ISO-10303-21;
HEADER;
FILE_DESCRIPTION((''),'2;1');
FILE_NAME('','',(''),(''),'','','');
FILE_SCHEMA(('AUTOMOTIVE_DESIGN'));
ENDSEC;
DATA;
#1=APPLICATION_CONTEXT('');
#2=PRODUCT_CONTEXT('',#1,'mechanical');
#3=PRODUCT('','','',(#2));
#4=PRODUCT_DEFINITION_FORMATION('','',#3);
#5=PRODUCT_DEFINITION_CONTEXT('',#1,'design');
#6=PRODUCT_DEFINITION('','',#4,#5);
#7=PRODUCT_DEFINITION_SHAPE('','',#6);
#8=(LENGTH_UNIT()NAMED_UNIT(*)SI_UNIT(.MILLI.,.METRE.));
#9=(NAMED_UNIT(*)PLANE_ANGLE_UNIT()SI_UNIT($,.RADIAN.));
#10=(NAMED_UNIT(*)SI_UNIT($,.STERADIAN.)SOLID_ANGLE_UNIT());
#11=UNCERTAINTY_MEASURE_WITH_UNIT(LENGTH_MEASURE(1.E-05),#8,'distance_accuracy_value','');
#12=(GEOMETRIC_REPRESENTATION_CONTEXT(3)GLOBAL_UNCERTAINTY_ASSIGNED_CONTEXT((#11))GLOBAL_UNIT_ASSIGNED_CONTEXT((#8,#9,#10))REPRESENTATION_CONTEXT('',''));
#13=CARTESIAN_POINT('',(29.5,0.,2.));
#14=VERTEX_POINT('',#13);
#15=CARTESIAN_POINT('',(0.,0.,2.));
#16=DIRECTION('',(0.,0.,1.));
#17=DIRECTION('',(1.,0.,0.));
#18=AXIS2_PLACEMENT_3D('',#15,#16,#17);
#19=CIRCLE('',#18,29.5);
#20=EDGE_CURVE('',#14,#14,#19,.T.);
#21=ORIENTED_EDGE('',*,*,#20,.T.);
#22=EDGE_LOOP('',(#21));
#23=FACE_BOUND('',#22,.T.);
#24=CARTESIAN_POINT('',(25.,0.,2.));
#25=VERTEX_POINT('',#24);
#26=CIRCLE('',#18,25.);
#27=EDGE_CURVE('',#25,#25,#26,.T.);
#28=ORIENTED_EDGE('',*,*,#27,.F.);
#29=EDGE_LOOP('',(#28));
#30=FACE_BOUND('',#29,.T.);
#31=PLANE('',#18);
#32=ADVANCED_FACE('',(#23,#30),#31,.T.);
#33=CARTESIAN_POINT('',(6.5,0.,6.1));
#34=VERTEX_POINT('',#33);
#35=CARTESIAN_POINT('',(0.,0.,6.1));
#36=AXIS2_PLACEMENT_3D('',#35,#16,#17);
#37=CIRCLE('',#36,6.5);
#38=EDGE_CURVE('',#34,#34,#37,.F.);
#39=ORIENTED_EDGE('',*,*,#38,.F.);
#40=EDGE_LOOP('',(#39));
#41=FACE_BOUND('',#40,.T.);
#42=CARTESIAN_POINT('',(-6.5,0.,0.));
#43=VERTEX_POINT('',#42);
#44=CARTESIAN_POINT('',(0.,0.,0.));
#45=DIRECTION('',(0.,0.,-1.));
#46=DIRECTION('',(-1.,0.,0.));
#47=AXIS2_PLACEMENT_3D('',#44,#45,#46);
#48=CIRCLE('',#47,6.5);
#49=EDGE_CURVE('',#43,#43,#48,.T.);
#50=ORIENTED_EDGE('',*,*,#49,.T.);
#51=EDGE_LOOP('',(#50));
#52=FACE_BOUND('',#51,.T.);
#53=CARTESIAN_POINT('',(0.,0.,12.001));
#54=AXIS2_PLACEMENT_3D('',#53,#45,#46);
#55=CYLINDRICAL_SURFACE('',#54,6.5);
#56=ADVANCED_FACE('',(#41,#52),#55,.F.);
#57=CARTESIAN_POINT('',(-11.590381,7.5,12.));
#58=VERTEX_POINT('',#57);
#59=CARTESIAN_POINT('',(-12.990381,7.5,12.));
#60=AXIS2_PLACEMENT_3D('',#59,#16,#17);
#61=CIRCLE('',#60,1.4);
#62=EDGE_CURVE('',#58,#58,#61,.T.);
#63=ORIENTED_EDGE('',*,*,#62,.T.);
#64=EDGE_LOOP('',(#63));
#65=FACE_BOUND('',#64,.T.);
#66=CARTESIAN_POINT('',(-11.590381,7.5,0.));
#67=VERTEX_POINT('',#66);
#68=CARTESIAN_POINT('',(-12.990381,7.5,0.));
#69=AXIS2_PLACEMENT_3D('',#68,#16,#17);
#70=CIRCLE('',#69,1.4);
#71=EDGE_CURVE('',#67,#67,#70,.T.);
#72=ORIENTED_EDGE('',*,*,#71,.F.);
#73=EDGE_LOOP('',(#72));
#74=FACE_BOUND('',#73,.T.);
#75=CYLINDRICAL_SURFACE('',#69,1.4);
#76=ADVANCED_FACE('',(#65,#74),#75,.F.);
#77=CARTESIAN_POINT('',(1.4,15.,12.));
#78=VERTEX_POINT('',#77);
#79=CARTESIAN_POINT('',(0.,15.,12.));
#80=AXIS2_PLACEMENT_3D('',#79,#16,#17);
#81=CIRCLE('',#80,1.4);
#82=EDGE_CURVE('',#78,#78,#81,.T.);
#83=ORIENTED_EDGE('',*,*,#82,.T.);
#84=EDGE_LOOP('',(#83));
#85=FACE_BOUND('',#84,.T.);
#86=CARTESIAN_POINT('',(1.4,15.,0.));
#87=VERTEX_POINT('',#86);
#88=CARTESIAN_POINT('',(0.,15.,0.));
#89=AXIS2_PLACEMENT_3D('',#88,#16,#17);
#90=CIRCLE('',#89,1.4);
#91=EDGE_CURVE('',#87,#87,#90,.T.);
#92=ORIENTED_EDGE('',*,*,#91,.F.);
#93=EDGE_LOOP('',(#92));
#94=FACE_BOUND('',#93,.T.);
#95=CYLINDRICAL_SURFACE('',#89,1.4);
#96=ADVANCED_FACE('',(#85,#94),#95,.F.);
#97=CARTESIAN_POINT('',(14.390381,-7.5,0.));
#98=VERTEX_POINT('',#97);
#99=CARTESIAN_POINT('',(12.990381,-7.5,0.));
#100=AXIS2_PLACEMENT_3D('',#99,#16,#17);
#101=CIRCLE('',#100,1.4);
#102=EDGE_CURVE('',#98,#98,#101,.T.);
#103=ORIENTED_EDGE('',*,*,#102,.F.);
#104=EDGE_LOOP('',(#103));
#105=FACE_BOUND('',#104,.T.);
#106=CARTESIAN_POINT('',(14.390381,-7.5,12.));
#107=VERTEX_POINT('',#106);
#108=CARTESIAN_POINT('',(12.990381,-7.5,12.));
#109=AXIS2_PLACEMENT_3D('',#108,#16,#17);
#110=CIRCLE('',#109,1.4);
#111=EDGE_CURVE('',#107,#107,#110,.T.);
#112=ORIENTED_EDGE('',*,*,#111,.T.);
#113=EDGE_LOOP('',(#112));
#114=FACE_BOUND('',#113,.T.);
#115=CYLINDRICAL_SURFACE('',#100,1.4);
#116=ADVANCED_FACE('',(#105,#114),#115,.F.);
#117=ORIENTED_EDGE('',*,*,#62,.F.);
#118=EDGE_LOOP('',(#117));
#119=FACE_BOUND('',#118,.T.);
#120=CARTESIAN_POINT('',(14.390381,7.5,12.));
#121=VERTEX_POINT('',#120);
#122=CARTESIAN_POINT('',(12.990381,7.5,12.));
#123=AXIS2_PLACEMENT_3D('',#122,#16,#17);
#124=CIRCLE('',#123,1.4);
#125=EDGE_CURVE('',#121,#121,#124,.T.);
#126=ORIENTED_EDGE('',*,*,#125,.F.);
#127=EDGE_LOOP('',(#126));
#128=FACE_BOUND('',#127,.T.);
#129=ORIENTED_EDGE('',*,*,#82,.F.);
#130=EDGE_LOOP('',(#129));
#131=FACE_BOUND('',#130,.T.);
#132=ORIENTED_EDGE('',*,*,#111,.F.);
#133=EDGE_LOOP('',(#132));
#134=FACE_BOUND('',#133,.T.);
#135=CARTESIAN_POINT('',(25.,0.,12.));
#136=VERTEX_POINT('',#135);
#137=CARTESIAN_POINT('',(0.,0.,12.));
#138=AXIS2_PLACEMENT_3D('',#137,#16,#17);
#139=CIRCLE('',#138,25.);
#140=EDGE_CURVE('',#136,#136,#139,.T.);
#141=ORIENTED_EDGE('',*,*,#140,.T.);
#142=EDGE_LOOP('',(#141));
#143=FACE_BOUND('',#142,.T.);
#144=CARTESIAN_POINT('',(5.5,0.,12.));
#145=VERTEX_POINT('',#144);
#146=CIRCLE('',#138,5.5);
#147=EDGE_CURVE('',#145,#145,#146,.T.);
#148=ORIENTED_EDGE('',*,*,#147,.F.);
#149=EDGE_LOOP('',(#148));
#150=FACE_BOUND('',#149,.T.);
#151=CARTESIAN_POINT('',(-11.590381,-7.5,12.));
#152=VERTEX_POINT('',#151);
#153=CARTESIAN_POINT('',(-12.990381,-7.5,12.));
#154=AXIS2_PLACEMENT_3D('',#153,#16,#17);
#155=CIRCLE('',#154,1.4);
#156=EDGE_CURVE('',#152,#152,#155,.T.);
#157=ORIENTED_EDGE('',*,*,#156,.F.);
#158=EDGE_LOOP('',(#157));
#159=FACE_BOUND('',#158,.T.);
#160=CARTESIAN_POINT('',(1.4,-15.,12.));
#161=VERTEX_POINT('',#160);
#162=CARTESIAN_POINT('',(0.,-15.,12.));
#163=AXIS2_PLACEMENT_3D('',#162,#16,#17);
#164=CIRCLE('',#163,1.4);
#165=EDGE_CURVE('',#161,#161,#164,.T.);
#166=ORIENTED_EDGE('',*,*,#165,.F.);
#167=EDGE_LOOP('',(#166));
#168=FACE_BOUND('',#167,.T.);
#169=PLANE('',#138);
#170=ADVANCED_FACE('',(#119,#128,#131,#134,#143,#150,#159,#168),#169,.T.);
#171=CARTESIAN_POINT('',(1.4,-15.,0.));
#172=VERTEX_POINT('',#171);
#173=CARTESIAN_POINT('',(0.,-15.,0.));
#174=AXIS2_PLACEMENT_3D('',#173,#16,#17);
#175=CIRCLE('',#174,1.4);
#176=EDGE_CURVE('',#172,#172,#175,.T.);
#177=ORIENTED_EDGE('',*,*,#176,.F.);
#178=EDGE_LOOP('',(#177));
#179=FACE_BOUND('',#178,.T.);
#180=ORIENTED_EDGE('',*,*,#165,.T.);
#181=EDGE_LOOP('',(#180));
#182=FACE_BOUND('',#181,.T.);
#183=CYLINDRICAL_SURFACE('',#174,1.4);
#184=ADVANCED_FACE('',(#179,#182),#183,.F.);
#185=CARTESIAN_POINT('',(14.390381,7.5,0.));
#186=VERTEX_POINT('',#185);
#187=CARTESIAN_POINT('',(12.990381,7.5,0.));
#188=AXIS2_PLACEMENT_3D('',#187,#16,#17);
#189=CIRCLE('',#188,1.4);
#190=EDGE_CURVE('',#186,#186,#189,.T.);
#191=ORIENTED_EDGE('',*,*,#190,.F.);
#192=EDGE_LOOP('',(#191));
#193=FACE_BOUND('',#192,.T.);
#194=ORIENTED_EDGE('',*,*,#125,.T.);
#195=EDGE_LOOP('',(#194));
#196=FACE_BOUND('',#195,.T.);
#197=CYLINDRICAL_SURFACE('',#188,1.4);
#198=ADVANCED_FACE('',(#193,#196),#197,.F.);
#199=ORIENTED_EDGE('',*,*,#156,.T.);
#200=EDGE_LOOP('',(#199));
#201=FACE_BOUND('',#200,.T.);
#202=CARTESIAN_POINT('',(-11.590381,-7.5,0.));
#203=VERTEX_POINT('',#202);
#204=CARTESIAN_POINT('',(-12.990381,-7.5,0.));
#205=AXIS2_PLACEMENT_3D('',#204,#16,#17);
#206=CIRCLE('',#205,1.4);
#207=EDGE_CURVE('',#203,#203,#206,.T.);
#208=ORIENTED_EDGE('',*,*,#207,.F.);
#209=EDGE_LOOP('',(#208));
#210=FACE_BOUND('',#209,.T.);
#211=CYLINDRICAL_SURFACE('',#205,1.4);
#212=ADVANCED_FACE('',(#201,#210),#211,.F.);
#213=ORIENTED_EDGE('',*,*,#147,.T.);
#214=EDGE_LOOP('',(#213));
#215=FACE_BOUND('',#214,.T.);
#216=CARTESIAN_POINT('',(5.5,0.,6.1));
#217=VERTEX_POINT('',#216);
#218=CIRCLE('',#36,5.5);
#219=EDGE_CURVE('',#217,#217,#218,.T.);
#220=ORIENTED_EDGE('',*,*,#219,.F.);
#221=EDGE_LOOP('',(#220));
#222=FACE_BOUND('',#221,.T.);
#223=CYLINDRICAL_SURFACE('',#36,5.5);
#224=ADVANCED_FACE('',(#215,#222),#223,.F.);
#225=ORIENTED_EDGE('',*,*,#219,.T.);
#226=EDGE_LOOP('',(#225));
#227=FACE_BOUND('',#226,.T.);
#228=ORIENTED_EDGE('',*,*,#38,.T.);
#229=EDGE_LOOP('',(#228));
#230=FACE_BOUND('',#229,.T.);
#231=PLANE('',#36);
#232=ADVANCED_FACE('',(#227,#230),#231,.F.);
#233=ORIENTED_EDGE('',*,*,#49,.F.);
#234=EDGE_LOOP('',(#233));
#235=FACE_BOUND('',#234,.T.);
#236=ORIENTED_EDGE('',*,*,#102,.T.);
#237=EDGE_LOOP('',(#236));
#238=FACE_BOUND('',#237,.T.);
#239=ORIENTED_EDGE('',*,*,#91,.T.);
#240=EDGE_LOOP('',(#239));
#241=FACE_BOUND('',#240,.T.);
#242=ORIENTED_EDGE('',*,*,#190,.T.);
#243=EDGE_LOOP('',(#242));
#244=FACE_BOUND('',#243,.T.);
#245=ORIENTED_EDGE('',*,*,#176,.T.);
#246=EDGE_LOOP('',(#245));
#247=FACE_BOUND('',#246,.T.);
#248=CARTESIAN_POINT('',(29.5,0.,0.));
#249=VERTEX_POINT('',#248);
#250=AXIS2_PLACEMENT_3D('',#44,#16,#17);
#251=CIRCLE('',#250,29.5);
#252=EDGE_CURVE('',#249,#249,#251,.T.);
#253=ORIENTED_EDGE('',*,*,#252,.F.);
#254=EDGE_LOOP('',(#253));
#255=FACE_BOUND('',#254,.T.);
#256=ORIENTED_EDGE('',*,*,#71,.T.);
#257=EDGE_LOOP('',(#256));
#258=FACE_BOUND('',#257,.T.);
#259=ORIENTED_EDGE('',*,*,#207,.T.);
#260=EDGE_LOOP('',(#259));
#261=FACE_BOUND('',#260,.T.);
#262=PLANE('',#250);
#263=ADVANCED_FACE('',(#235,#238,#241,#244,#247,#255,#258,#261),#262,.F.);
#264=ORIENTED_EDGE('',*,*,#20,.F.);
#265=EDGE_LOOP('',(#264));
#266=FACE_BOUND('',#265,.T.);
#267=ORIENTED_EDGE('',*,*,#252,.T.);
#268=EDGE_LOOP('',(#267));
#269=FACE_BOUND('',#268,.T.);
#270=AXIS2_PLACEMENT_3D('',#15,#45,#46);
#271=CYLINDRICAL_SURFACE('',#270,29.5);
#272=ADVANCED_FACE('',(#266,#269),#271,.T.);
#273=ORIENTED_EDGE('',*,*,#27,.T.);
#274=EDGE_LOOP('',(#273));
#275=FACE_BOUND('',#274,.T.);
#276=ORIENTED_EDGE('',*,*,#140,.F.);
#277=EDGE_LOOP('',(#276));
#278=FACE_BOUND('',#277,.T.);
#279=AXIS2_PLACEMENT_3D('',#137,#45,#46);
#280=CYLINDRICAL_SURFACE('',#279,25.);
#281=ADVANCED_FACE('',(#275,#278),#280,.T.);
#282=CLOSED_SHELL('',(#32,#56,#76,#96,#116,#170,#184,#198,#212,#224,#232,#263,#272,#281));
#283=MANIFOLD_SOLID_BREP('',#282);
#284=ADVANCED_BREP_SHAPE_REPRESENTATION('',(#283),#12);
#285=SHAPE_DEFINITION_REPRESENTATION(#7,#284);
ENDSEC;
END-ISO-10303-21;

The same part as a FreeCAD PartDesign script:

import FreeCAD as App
import Part
import Sketcher

V = App.Vector

doc = App.newDocument("Part")
body = doc.addObject("PartDesign::Body", "Body")

sketch1 = body.newObject("Sketcher::SketchObject", "Sketch")
sketch1.AttachmentSupport = (doc.getObject("XY_Plane"), [""])
sketch1.MapMode = "FlatFace"
sketch1.addGeometry(Part.Circle(V(0, 0, 0), V(0, 0, 1), 29.5), False)
sketch1.addConstraint([
    Sketcher.Constraint("Coincident", 0, 3, -1, 1),
    Sketcher.Constraint("Diameter", 0, 59.0),
])
pad1 = body.newObject("PartDesign::Pad", "Pad")
pad1.Profile = sketch1
pad1.Length = 2

sketch2 = body.newObject("Sketcher::SketchObject", "Sketch001")
sketch2.AttachmentSupport = (doc.getObject("XY_Plane"), [""])
sketch2.MapMode = "FlatFace"
sketch2.AttachmentOffset = App.Placement(V(0, 0, 2), App.Rotation())
sketch2.addGeometry(Part.Circle(V(0, 0, 0), V(0, 0, 1), 25), False)
sketch2.addConstraint([
    Sketcher.Constraint("Coincident", 0, 3, -1, 1),
    Sketcher.Constraint("Diameter", 0, 50.0),
])
pad2 = body.newObject("PartDesign::Pad", "Pad001")
pad2.Profile = sketch2
pad2.Length = 10

sketch3 = body.newObject("Sketcher::SketchObject", "Sketch002")
sketch3.AttachmentSupport = (doc.getObject("XY_Plane"), [""])
sketch3.MapMode = "FlatFace"
sketch3.AttachmentOffset = App.Placement(V(0, 0, 12), App.Rotation())
sketch3.addGeometry([
    Part.Circle(V(12.990381, 7.5, 0), V(0, 0, 1), 1.4),
    Part.Circle(V(12.990381, -7.5, 0), V(0, 0, 1), 1.4),
    Part.Circle(V(0, -15, 0), V(0, 0, 1), 1.4),
    Part.Circle(V(-12.990381, -7.5, 0), V(0, 0, 1), 1.4),
    Part.Circle(V(-12.990381, 7.5, 0), V(0, 0, 1), 1.4),
    Part.Circle(V(0, 15, 0), V(0, 0, 1), 1.4),
], False)
sketch3.addConstraint([
    Sketcher.Constraint("Equal", 0, 1),
    Sketcher.Constraint("Equal", 1, 2),
    Sketcher.Constraint("Equal", 2, 3),
    Sketcher.Constraint("Equal", 3, 4),
    Sketcher.Constraint("Equal", 4, 5),
    Sketcher.Constraint("Symmetric", 0, 3, 3, 3, -1, 1),
    Sketcher.Constraint("Symmetric", 1, 3, 4, 3, -1, 1),
    Sketcher.Constraint("Symmetric", 2, 3, 5, 3, -1, 1),
    Sketcher.Constraint("Symmetric", 1, 3, 3, 3, -2),
    Sketcher.Constraint("PointOnObject", 2, 3, -2),
    Sketcher.Constraint("Diameter", 0, 2.8),
    Sketcher.Constraint("DistanceY", 2, 3, -1, 1, 15.0),
    Sketcher.Constraint("DistanceY", 1, 3, 0, 3, 15.0),
    Sketcher.Constraint("DistanceX", -1, 1, 0, 3, 12.990381),
])
pocket1 = body.newObject("PartDesign::Pocket", "Pocket")
pocket1.Profile = sketch3
pocket1.Length = 12

sketch4 = body.newObject("Sketcher::SketchObject", "Sketch003")
sketch4.AttachmentSupport = (doc.getObject("XY_Plane"), [""])
sketch4.MapMode = "FlatFace"
sketch4.addGeometry(Part.Circle(V(0, 0, 0), V(0, 0, 1), 6.5), False)
sketch4.addConstraint([
    Sketcher.Constraint("Coincident", 0, 3, -1, 1),
    Sketcher.Constraint("Diameter", 0, 13.0),
])
pocket2 = body.newObject("PartDesign::Pocket", "Pocket001")
pocket2.Profile = sketch4
pocket2.Type = "UpToFirst"
pocket2.Reversed = True

sketch5 = body.newObject("Sketcher::SketchObject", "Sketch004")
sketch5.AttachmentSupport = (doc.getObject("XY_Plane"), [""])
sketch5.MapMode = "FlatFace"
sketch5.AttachmentOffset = App.Placement(V(0, 0, 6.1), App.Rotation())
sketch5.addGeometry([
    Part.Circle(V(0, 0, 0), V(0, 0, 1), 6.5),
    Part.Circle(V(0, 0, 0), V(0, 0, 1), 5.5),
], False)
sketch5.addConstraint([
    Sketcher.Constraint("Coincident", 0, 3, -1, 1),
    Sketcher.Constraint("Coincident", 1, 3, -1, 1),
    Sketcher.Constraint("Diameter", 0, 13.0),
    Sketcher.Constraint("Diameter", 1, 11.0),
])
pad3 = body.newObject("PartDesign::Pad", "Pad002")
pad3.Profile = sketch5
pad3.Length = 5.9

doc.recompute()
